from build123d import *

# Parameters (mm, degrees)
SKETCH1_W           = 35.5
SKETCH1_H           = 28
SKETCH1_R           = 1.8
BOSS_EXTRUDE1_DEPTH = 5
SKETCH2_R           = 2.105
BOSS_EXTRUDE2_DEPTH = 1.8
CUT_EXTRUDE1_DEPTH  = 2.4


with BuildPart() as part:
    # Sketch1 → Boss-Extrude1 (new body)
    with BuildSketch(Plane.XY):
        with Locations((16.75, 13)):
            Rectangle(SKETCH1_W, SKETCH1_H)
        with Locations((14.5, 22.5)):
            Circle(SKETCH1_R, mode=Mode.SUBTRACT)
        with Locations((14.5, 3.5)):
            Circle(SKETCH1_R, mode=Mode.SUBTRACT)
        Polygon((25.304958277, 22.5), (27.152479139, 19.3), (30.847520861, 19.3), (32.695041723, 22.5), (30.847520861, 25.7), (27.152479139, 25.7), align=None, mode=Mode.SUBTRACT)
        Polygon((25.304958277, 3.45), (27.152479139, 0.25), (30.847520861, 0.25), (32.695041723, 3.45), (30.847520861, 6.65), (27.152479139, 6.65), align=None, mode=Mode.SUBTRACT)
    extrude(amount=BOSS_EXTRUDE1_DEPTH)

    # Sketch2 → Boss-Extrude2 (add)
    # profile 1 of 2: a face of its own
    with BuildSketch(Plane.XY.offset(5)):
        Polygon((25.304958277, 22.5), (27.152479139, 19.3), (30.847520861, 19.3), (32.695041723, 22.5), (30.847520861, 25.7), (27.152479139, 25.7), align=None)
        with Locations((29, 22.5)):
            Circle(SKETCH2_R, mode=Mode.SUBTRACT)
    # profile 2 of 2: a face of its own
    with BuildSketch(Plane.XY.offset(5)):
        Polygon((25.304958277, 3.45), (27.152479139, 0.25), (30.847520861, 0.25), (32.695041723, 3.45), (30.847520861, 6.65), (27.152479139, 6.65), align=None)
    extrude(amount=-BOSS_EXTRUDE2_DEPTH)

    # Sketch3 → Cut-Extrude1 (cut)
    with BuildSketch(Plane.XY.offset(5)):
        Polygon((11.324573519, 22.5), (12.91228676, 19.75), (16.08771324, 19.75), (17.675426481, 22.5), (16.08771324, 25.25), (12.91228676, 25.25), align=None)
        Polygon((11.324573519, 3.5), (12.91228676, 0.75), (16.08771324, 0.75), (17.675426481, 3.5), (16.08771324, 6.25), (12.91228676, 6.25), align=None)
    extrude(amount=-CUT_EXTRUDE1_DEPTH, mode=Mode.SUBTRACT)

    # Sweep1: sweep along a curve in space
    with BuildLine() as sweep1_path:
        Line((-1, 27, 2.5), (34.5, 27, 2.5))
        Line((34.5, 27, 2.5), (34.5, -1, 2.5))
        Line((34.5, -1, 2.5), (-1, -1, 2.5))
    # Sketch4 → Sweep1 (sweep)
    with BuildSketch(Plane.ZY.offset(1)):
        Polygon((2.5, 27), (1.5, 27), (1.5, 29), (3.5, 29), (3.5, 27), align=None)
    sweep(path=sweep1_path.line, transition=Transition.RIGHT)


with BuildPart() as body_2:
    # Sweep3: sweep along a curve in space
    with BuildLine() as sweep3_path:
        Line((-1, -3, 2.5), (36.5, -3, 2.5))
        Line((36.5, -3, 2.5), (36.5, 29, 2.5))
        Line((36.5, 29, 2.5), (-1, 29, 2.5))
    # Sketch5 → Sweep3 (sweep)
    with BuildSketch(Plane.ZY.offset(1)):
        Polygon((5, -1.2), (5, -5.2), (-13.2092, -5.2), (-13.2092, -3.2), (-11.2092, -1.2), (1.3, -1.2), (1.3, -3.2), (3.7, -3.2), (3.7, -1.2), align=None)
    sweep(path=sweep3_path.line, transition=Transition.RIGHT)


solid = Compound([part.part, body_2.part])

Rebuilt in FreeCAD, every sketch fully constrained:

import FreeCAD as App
import Part
import Sketcher
Q = App.Units.Quantity

doc = App.newDocument("Part")
body = doc.addObject("PartDesign::Body", "Body")

sketch1 = doc.addObject("Sketcher::SketchObject", "Sketch")
body.addObject(sketch1)
sketch1.AttachmentSupport = (doc.XY_Plane, [""])
sketch1.MapMode = "FlatFace"
sketch1.addGeometry(Part.LineSegment(App.Vector(-1, 27, 0), App.Vector(-1, -1, 0)), False)
sketch1.addGeometry(Part.LineSegment(App.Vector(-1, -1, 0), App.Vector(34.5, -1, 0)), False)
sketch1.addGeometry(Part.LineSegment(App.Vector(34.5, -1, 0), App.Vector(34.5, 27, 0)), False)
sketch1.addGeometry(Part.LineSegment(App.Vector(34.5, 27, 0), App.Vector(-1, 27, 0)), False)
sketch1.addGeometry(Part.Circle(App.Vector(14.5, 3.5, 0), App.Vector(0, 0, 1), 1.8), False)
sketch1.addGeometry(Part.LineSegment(App.Vector(27.2, 0.2, 0), App.Vector(25.3, 3.5, 0)), False)
sketch1.addGeometry(Part.LineSegment(App.Vector(25.3, 3.5, 0), App.Vector(27.2, 6.7, 0)), False)
sketch1.addGeometry(Part.LineSegment(App.Vector(27.2, 6.7, 0), App.Vector(30.8, 6.7, 0)), False)
sketch1.addGeometry(Part.LineSegment(App.Vector(30.8, 6.7, 0), App.Vector(32.7, 3.5, 0)), False)
sketch1.addGeometry(Part.LineSegment(App.Vector(32.7, 3.5, 0), App.Vector(30.8, 0.2, 0)), False)
sketch1.addGeometry(Part.LineSegment(App.Vector(30.8, 0.2, 0), App.Vector(27.2, 0.2, 0)), False)
sketch1.addGeometry(Part.Circle(App.Vector(14.5, 22.5, 0), App.Vector(0, 0, 1), 1.8), False)
sketch1.addGeometry(Part.LineSegment(App.Vector(27.2, 19.3, 0), App.Vector(25.3, 22.5, 0)), False)
sketch1.addGeometry(Part.LineSegment(App.Vector(25.3, 22.5, 0), App.Vector(27.2, 25.7, 0)), False)
sketch1.addGeometry(Part.LineSegment(App.Vector(27.2, 25.7, 0), App.Vector(30.8, 25.7, 0)), False)
sketch1.addGeometry(Part.LineSegment(App.Vector(30.8, 25.7, 0), App.Vector(32.7, 22.5, 0)), False)
sketch1.addGeometry(Part.LineSegment(App.Vector(32.7, 22.5, 0), App.Vector(30.8, 19.3, 0)), False)
sketch1.addGeometry(Part.LineSegment(App.Vector(30.8, 19.3, 0), App.Vector(27.2, 19.3, 0)), False)
sketch1.addConstraint(Sketcher.Constraint("Coincident", 0, 2, 1, 1))
sketch1.addConstraint(Sketcher.Constraint("Coincident", 1, 2, 2, 1))
sketch1.addConstraint(Sketcher.Constraint("Coincident", 2, 2, 3, 1))
sketch1.addConstraint(Sketcher.Constraint("Coincident", 3, 2, 0, 1))
sketch1.addConstraint(Sketcher.Constraint("Coincident", 5, 2, 6, 1))
sketch1.addConstraint(Sketcher.Constraint("Coincident", 6, 2, 7, 1))
sketch1.addConstraint(Sketcher.Constraint("Coincident", 7, 2, 8, 1))
sketch1.addConstraint(Sketcher.Constraint("Coincident", 8, 2, 9, 1))
sketch1.addConstraint(Sketcher.Constraint("Coincident", 9, 2, 10, 1))
sketch1.addConstraint(Sketcher.Constraint("Coincident", 10, 2, 5, 1))
sketch1.addConstraint(Sketcher.Constraint("Coincident", 12, 2, 13, 1))
sketch1.addConstraint(Sketcher.Constraint("Coincident", 13, 2, 14, 1))
sketch1.addConstraint(Sketcher.Constraint("Coincident", 14, 2, 15, 1))
sketch1.addConstraint(Sketcher.Constraint("Coincident", 15, 2, 16, 1))
sketch1.addConstraint(Sketcher.Constraint("Coincident", 16, 2, 17, 1))
sketch1.addConstraint(Sketcher.Constraint("Coincident", 17, 2, 12, 1))
sketch1.addConstraint(Sketcher.Constraint("Vertical", 0))
sketch1.addConstraint(Sketcher.Constraint("Horizontal", 1))
sketch1.addConstraint(Sketcher.Constraint("Vertical", 2))
sketch1.addConstraint(Sketcher.Constraint("Horizontal", 3))
sketch1.addConstraint(Sketcher.Constraint("Horizontal", 7))
sketch1.addConstraint(Sketcher.Constraint("Horizontal", 10))
sketch1.addConstraint(Sketcher.Constraint("Horizontal", 14))
sketch1.addConstraint(Sketcher.Constraint("Horizontal", 17))
sketch1.addConstraint(Sketcher.Constraint("Equal", 4, 11))
sketch1.addConstraint(Sketcher.Constraint("Parallel", 5, 8))
sketch1.addConstraint(Sketcher.Constraint("Parallel", 6, 9))
sketch1.addConstraint(Sketcher.Constraint("Parallel", 8, 12))
sketch1.addConstraint(Sketcher.Constraint("Parallel", 9, 13))
sketch1.addConstraint(Sketcher.Constraint("Parallel", 12, 15))
sketch1.addConstraint(Sketcher.Constraint("Parallel", 13, 16))
sketch1.addConstraint(Sketcher.Constraint("Horizontal", 5, 2, 8, 2))
sketch1.addConstraint(Sketcher.Constraint("Horizontal", 11, 3, 12, 2))
sketch1.addConstraint(Sketcher.Constraint("Horizontal", 12, 2, 15, 2))
sketch1.addConstraint(Sketcher.Constraint("Vertical", 4, 3, 11, 3))
sketch1.addConstraint(Sketcher.Constraint("Vertical", 7, 2, 9, 2))
sketch1.addConstraint(Sketcher.Constraint("Vertical", 6, 2, 10, 2))
sketch1.addConstraint(Sketcher.Constraint("Vertical", 5, 2, 12, 2))
sketch1.addConstraint(Sketcher.Constraint("Vertical", 10, 2, 13, 2))
sketch1.addConstraint(Sketcher.Constraint("Vertical", 9, 2, 14, 2))
sketch1.addConstraint(Sketcher.Constraint("Vertical", 14, 2, 16, 2))
sketch1.addConstraint(Sketcher.Constraint("Diameter", 4, 3.6))
sketch1.addConstraint(Sketcher.Constraint("DistanceY", 0, 2, 0, 1, 28.0))
sketch1.addConstraint(Sketcher.Constraint("Angle", 5, Q("120 deg")))
sketch1.addConstraint(Sketcher.Constraint("DistanceX", 1, 1, 1, 2, 35.5))
sketch1.addConstraint(Sketcher.Constraint("DistanceX", 0, 2, -1, 1, 1.0))
sketch1.addConstraint(Sketcher.Constraint("DistanceY", 0, 2, -1, 1, 1.0))
sketch1.addConstraint(Sketcher.Constraint("DistanceY", 4, 3, 11, 3, 19.0))
sketch1.addConstraint(Sketcher.Constraint("DistanceX", 4, 3, 1, 2, 20.0))
sketch1.addConstraint(Sketcher.Constraint("DistanceY", -1, 1, 4, 3, 3.5))
sketch1.addConstraint(Sketcher.Constraint("DistanceY", -1, 1, 13, 2, 25.7))
sketch1.addConstraint(Sketcher.Constraint("DistanceY", -1, 1, 5, 2, 3.45))
sketch1.addConstraint(Sketcher.Constraint("DistanceX", 7, 1, 7, 2, 3.695042))
sketch1.addConstraint(Sketcher.Constraint("DistanceX", -1, 1, 5, 2, 25.304958))
pad1 = doc.addObject("PartDesign::Pad", "Pad")
body.addObject(pad1)
pad1.Profile = sketch1
pad1.Length = 5

sketch2 = doc.addObject("Sketcher::SketchObject", "Sketch001")
body.addObject(sketch2)
sketch2.AttachmentSupport = (doc.XY_Plane, [""])
sketch2.MapMode = "FlatFace"
sketch2.AttachmentOffset = App.Placement(App.Vector(0, 0, 5), App.Rotation())
sketch2.addGeometry(Part.LineSegment(App.Vector(25.3, 22.5, 0), App.Vector(27.2, 19.3, 0)), False)
sketch2.addGeometry(Part.LineSegment(App.Vector(27.2, 19.3, 0), App.Vector(30.8, 19.3, 0)), False)
sketch2.addGeometry(Part.LineSegment(App.Vector(30.8, 19.3, 0), App.Vector(32.7, 22.5, 0)), False)
sketch2.addGeometry(Part.LineSegment(App.Vector(32.7, 22.5, 0), App.Vector(30.8, 25.7, 0)), False)
sketch2.addGeometry(Part.LineSegment(App.Vector(30.8, 25.7, 0), App.Vector(27.2, 25.7, 0)), False)
sketch2.addGeometry(Part.LineSegment(App.Vector(27.2, 25.7, 0), App.Vector(25.3, 22.5, 0)), False)
sketch2.addGeometry(Part.Circle(App.Vector(29, 22.5, 0), App.Vector(0, 0, 1), 2.1), False)
sketch2.addGeometry(Part.LineSegment(App.Vector(25.3, 3.5, 0), App.Vector(27.2, 0.2, 0)), False)
sketch2.addGeometry(Part.LineSegment(App.Vector(27.2, 0.2, 0), App.Vector(30.8, 0.2, 0)), False)
sketch2.addGeometry(Part.LineSegment(App.Vector(30.8, 0.2, 0), App.Vector(32.7, 3.5, 0)), False)
sketch2.addGeometry(Part.LineSegment(App.Vector(32.7, 3.5, 0), App.Vector(30.8, 6.7, 0)), False)
sketch2.addGeometry(Part.LineSegment(App.Vector(30.8, 6.7, 0), App.Vector(27.2, 6.7, 0)), False)
sketch2.addGeometry(Part.LineSegment(App.Vector(27.2, 6.7, 0), App.Vector(25.3, 3.5, 0)), False)
sketch2.addConstraint(Sketcher.Constraint("Coincident", 0, 2, 1, 1))
sketch2.addConstraint(Sketcher.Constraint("Coincident", 1, 2, 2, 1))
sketch2.addConstraint(Sketcher.Constraint("Coincident", 2, 2, 3, 1))
sketch2.addConstraint(Sketcher.Constraint("Coincident", 3, 2, 4, 1))
sketch2.addConstraint(Sketcher.Constraint("Coincident", 4, 2, 5, 1))
sketch2.addConstraint(Sketcher.Constraint("Coincident", 5, 2, 0, 1))
sketch2.addConstraint(Sketcher.Constraint("Coincident", 7, 2, 8, 1))
sketch2.addConstraint(Sketcher.Constraint("Coincident", 8, 2, 9, 1))
sketch2.addConstraint(Sketcher.Constraint("Coincident", 9, 2, 10, 1))
sketch2.addConstraint(Sketcher.Constraint("Coincident", 10, 2, 11, 1))
sketch2.addConstraint(Sketcher.Constraint("Coincident", 11, 2, 12, 1))
sketch2.addConstraint(Sketcher.Constraint("Coincident", 12, 2, 7, 1))
sketch2.addConstraint(Sketcher.Constraint("Horizontal", 1))
sketch2.addConstraint(Sketcher.Constraint("Horizontal", 4))
sketch2.addConstraint(Sketcher.Constraint("Horizontal", 8))
sketch2.addConstraint(Sketcher.Constraint("Horizontal", 11))
sketch2.addConstraint(Sketcher.Constraint("Parallel", 0, 3))
sketch2.addConstraint(Sketcher.Constraint("Parallel", 2, 5))
sketch2.addConstraint(Sketcher.Constraint("Parallel", 3, 7))
sketch2.addConstraint(Sketcher.Constraint("Parallel", 5, 9))
sketch2.addConstraint(Sketcher.Constraint("Parallel", 7, 10))
sketch2.addConstraint(Sketcher.Constraint("Parallel", 9, 12))
sketch2.addConstraint(Sketcher.Constraint("Horizontal", 6, 3, 2, 2))
sketch2.addConstraint(Sketcher.Constraint("Horizontal", 2, 2, 5, 2))
sketch2.addConstraint(Sketcher.Constraint("Horizontal", 9, 2, 12, 2))
sketch2.addConstraint(Sketcher.Constraint("Vertical", 1, 2, 3, 2))
sketch2.addConstraint(Sketcher.Constraint("Vertical", 0, 2, 4, 2))
sketch2.addConstraint(Sketcher.Constraint("Vertical", 4, 2, 7, 2))
sketch2.addConstraint(Sketcher.Constraint("Vertical", 3, 2, 8, 2))
sketch2.addConstraint(Sketcher.Constraint("Vertical", 2, 2, 9, 2))
sketch2.addConstraint(Sketcher.Constraint("Vertical", 8, 2, 10, 2))
sketch2.addConstraint(Sketcher.Constraint("Diameter", 6, 4.21))
sketch2.addConstraint(Sketcher.Constraint("Angle", 0, Q("-60 deg")))
sketch2.addConstraint(Sketcher.Constraint("DistanceX", -1, 1, 6, 3, 29.0))
sketch2.addConstraint(Sketcher.Constraint("DistanceY", -1, 1, 6, 3, 22.5))
sketch2.addConstraint(Sketcher.Constraint("DistanceY", -1, 1, 0, 2, 19.3))
sketch2.addConstraint(Sketcher.Constraint("DistanceY", -1, 1, 7, 2, 0.25))
sketch2.addConstraint(Sketcher.Constraint("DistanceX", 1, 1, 1, 2, 3.695042))
sketch2.addConstraint(Sketcher.Constraint("DistanceX", -1, 1, 0, 2, 27.152479))
pad2 = doc.addObject("PartDesign::Pad", "Pad001")
body.addObject(pad2)
pad2.Profile = sketch2
pad2.Length = 1.8
pad2.Reversed = True

sketch3 = doc.addObject("Sketcher::SketchObject", "Sketch002")
body.addObject(sketch3)
sketch3.AttachmentSupport = (doc.XY_Plane, [""])
sketch3.MapMode = "FlatFace"
sketch3.AttachmentOffset = App.Placement(App.Vector(0, 0, 5), App.Rotation())
sketch3.addGeometry(Part.LineSegment(App.Vector(11.3, 22.5, 0), App.Vector(12.9, 19.8, 0)), False)
sketch3.addGeometry(Part.LineSegment(App.Vector(12.9, 19.8, 0), App.Vector(16.1, 19.8, 0)), False)
sketch3.addGeometry(Part.LineSegment(App.Vector(16.1, 19.8, 0), App.Vector(17.7, 22.5, 0)), False)
sketch3.addGeometry(Part.LineSegment(App.Vector(17.7, 22.5, 0), App.Vector(16.1, 25.2, 0)), False)
sketch3.addGeometry(Part.LineSegment(App.Vector(16.1, 25.2, 0), App.Vector(12.9, 25.2, 0)), False)
sketch3.addGeometry(Part.LineSegment(App.Vector(12.9, 25.2, 0), App.Vector(11.3, 22.5, 0)), False)
sketch3.addGeometry(Part.LineSegment(App.Vector(11.3, 3.5, 0), App.Vector(12.9, 0.8, 0)), False)
sketch3.addGeometry(Part.LineSegment(App.Vector(12.9, 0.8, 0), App.Vector(16.1, 0.8, 0)), False)
sketch3.addGeometry(Part.LineSegment(App.Vector(16.1, 0.8, 0), App.Vector(17.7, 3.5, 0)), False)
sketch3.addGeometry(Part.LineSegment(App.Vector(17.7, 3.5, 0), App.Vector(16.1, 6.2, 0)), False)
sketch3.addGeometry(Part.LineSegment(App.Vector(16.1, 6.2, 0), App.Vector(12.9, 6.2, 0)), False)
sketch3.addGeometry(Part.LineSegment(App.Vector(12.9, 6.2, 0), App.Vector(11.3, 3.5, 0)), False)
sketch3.addConstraint(Sketcher.Constraint("Coincident", 0, 2, 1, 1))
sketch3.addConstraint(Sketcher.Constraint("Coincident", 1, 2, 2, 1))
sketch3.addConstraint(Sketcher.Constraint("Coincident", 2, 2, 3, 1))
sketch3.addConstraint(Sketcher.Constraint("Coincident", 3, 2, 4, 1))
sketch3.addConstraint(Sketcher.Constraint("Coincident", 4, 2, 5, 1))
sketch3.addConstraint(Sketcher.Constraint("Coincident", 5, 2, 0, 1))
sketch3.addConstraint(Sketcher.Constraint("Coincident", 6, 2, 7, 1))
sketch3.addConstraint(Sketcher.Constraint("Coincident", 7, 2, 8, 1))
sketch3.addConstraint(Sketcher.Constraint("Coincident", 8, 2, 9, 1))
sketch3.addConstraint(Sketcher.Constraint("Coincident", 9, 2, 10, 1))
sketch3.addConstraint(Sketcher.Constraint("Coincident", 10, 2, 11, 1))
sketch3.addConstraint(Sketcher.Constraint("Coincident", 11, 2, 6, 1))
sketch3.addConstraint(Sketcher.Constraint("Horizontal", 1))
sketch3.addConstraint(Sketcher.Constraint("Horizontal", 4))
sketch3.addConstraint(Sketcher.Constraint("Horizontal", 7))
sketch3.addConstraint(Sketcher.Constraint("Horizontal", 10))
sketch3.addConstraint(Sketcher.Constraint("Parallel", 0, 3))
sketch3.addConstraint(Sketcher.Constraint("Parallel", 2, 5))
sketch3.addConstraint(Sketcher.Constraint("Parallel", 3, 6))
sketch3.addConstraint(Sketcher.Constraint("Parallel", 5, 8))
sketch3.addConstraint(Sketcher.Constraint("Parallel", 6, 9))
sketch3.addConstraint(Sketcher.Constraint("Parallel", 8, 11))
sketch3.addConstraint(Sketcher.Constraint("Horizontal", 2, 2, 5, 2))
sketch3.addConstraint(Sketcher.Constraint("Horizontal", 8, 2, 11, 2))
sketch3.addConstraint(Sketcher.Constraint("Vertical", 1, 2, 3, 2))
sketch3.addConstraint(Sketcher.Constraint("Vertical", 0, 2, 4, 2))
sketch3.addConstraint(Sketcher.Constraint("Vertical", 4, 2, 6, 2))
sketch3.addConstraint(Sketcher.Constraint("Vertical", 3, 2, 7, 2))
sketch3.addConstraint(Sketcher.Constraint("Vertical", 2, 2, 8, 2))
sketch3.addConstraint(Sketcher.Constraint("Vertical", 7, 2, 9, 2))
sketch3.addConstraint(Sketcher.Constraint("Angle", 0, Q("-60 deg")))
sketch3.addConstraint(Sketcher.Constraint("DistanceY", 6, 2, 0, 2, 19.0))
sketch3.addConstraint(Sketcher.Constraint("DistanceY", -1, 1, 2, 2, 22.5))
sketch3.addConstraint(Sketcher.Constraint("DistanceY", 1, 2, 3, 2, 5.5))
sketch3.addConstraint(Sketcher.Constraint("DistanceX", 1, 1, 1, 2, 3.175426))
sketch3.addConstraint(Sketcher.Constraint("DistanceX", -1, 1, 0, 2, 12.912287))
pocket1 = doc.addObject("PartDesign::Pocket", "Pocket")
body.addObject(pocket1)
pocket1.Profile = sketch3
pocket1.Length = 2.4

sketch4 = doc.addObject("Sketcher::SketchObject", "Sketch003")
body.addObject(sketch4)
sketch4.AttachmentSupport = (doc.YZ_Plane, [""])
sketch4.MapMode = "FlatFace"
sketch4.AttachmentOffset = App.Placement(App.Vector(0, 0, -1), App.Rotation())
sketch4.addGeometry(Part.LineSegment(App.Vector(27, 1.5, 0), App.Vector(27, 3.5, 0)), False)
sketch4.addGeometry(Part.LineSegment(App.Vector(27, 3.5, 0), App.Vector(29, 3.5, 0)), False)
sketch4.addGeometry(Part.LineSegment(App.Vector(29, 3.5, 0), App.Vector(29, 1.5, 0)), False)
sketch4.addGeometry(Part.LineSegment(App.Vector(29, 1.5, 0), App.Vector(27, 1.5, 0)), False)
sketch4.addConstraint(Sketcher.Constraint("Coincident", 0, 2, 1, 1))
sketch4.addConstraint(Sketcher.Constraint("Coincident", 1, 2, 2, 1))
sketch4.addConstraint(Sketcher.Constraint("Coincident", 2, 2, 3, 1))
sketch4.addConstraint(Sketcher.Constraint("Coincident", 3, 2, 0, 1))
sketch4.addConstraint(Sketcher.Constraint("Vertical", 0))
sketch4.addConstraint(Sketcher.Constraint("Horizontal", 1))
sketch4.addConstraint(Sketcher.Constraint("Vertical", 2))
sketch4.addConstraint(Sketcher.Constraint("Horizontal", 3))
sketch4.addConstraint(Sketcher.Constraint("Equal", 3, 0))
sketch4.addConstraint(Sketcher.Constraint("DistanceX", 1, 1, 1, 2, 2.0))
sketch4.addConstraint(Sketcher.Constraint("DistanceX", -1, 1, 0, 2, 27.0))
sketch4.addConstraint(Sketcher.Constraint("DistanceY", -1, 1, 0, 2, 3.5))

sketch5 = doc.addObject("Sketcher::SketchObject", "Sketch004")
body.addObject(sketch5)
sketch5.AttachmentSupport = (doc.XY_Plane, [""])
sketch5.MapMode = "FlatFace"
sketch5.AttachmentOffset = App.Placement(App.Vector(0, 0, 2.5), App.Rotation())
sketch5.addGeometry(Part.LineSegment(App.Vector(-1, 27, 0), App.Vector(34, 27, 0)), False)
sketch5.addGeometry(Part.LineSegment(App.Vector(34, 27, 0), App.Vector(34, -1, 0)), False)
sketch5.addGeometry(Part.LineSegment(App.Vector(34, -1, 0), App.Vector(-1, -1, 0)), False)
sketch5.addConstraint(Sketcher.Constraint("Coincident", 0, 2, 1, 1))
sketch5.addConstraint(Sketcher.Constraint("Coincident", 1, 2, 2, 1))
sketch5.addConstraint(Sketcher.Constraint("Horizontal", 0))
sketch5.addConstraint(Sketcher.Constraint("Vertical", 1))
sketch5.addConstraint(Sketcher.Constraint("Horizontal", 2))
sketch5.addConstraint(Sketcher.Constraint("Vertical", 0, 1, 2, 2))
sketch5.addConstraint(Sketcher.Constraint("DistanceY", 1, 2, 1, 1, 28.0))
sketch5.addConstraint(Sketcher.Constraint("DistanceX", 0, 1, 0, 2, 35.5))
sketch5.addConstraint(Sketcher.Constraint("DistanceX", 0, 1, -1, 1, 1.0))
sketch5.addConstraint(Sketcher.Constraint("DistanceY", -1, 1, 0, 1, 27.0))
doc.recompute()

additivepipe = doc.addObject("PartDesign::AdditivePipe", "AdditivePipe")
body.addObject(additivepipe)
additivepipe.Profile = sketch4
additivepipe.Spine = (sketch5, ["Edge1", "Edge2", "Edge3"])
additivepipe.Transition = "Right corner"
body2 = doc.addObject("PartDesign::Body", "Body001")

sketch6 = doc.addObject("Sketcher::SketchObject", "Sketch005")
body2.addObject(sketch6)
sketch6.AttachmentSupport = (doc.getObject("YZ_Plane001"), [""])
sketch6.MapMode = "FlatFace"
sketch6.AttachmentOffset = App.Placement(App.Vector(0, 0, -1), App.Rotation())
sketch6.addGeometry(Part.LineSegment(App.Vector(-5.2, 5, 0), App.Vector(-1.2, 5, 0)), False)
sketch6.addGeometry(Part.LineSegment(App.Vector(-1.2, 5, 0), App.Vector(-1.2, 3.7, 0)), False)
sketch6.addGeometry(Part.LineSegment(App.Vector(-1.2, 3.7, 0), App.Vector(-3.2, 3.7, 0)), False)
sketch6.addGeometry(Part.LineSegment(App.Vector(-3.2, 3.7, 0), App.Vector(-3.2, 1.3, 0)), False)
sketch6.addGeometry(Part.LineSegment(App.Vector(-3.2, 1.3, 0), App.Vector(-1.2, 1.3, 0)), False)
sketch6.addGeometry(Part.LineSegment(App.Vector(-1.2, 1.3, 0), App.Vector(-1.2, -11.2, 0)), False)
sketch6.addGeometry(Part.LineSegment(App.Vector(-1.2, -11.2, 0), App.Vector(-3.2, -13.2, 0)), False)
sketch6.addGeometry(Part.LineSegment(App.Vector(-3.2, -13.2, 0), App.Vector(-5.2, -13.2, 0)), False)
sketch6.addGeometry(Part.LineSegment(App.Vector(-5.2, -13.2, 0), App.Vector(-5.2, 5, 0)), False)
sketch6.addConstraint(Sketcher.Constraint("Coincident", 0, 2, 1, 1))
sketch6.addConstraint(Sketcher.Constraint("Coincident", 1, 2, 2, 1))
sketch6.addConstraint(Sketcher.Constraint("Coincident", 2, 2, 3, 1))
sketch6.addConstraint(Sketcher.Constraint("Coincident", 3, 2, 4, 1))
sketch6.addConstraint(Sketcher.Constraint("Coincident", 4, 2, 5, 1))
sketch6.addConstraint(Sketcher.Constraint("Coincident", 5, 2, 6, 1))
sketch6.addConstraint(Sketcher.Constraint("Coincident", 6, 2, 7, 1))
sketch6.addConstraint(Sketcher.Constraint("Coincident", 7, 2, 8, 1))
sketch6.addConstraint(Sketcher.Constraint("Coincident", 8, 2, 0, 1))
sketch6.addConstraint(Sketcher.Constraint("Horizontal", 0))
sketch6.addConstraint(Sketcher.Constraint("Vertical", 1))
sketch6.addConstraint(Sketcher.Constraint("Horizontal", 2))
sketch6.addConstraint(Sketcher.Constraint("Vertical", 3))
sketch6.addConstraint(Sketcher.Constraint("Horizontal", 4))
sketch6.addConstraint(Sketcher.Constraint("Vertical", 5))
sketch6.addConstraint(Sketcher.Constraint("Horizontal", 7))
sketch6.addConstraint(Sketcher.Constraint("Vertical", 8))
sketch6.addConstraint(Sketcher.Constraint("Vertical", 1, 2, 4, 2))
sketch6.addConstraint(Sketcher.Constraint("Vertical", 3, 2, 6, 2))
sketch6.addConstraint(Sketcher.Constraint("Equal", 4, 7))
sketch6.addConstraint(Sketcher.Constraint("DistanceX", 0, 1, 0, 2, 4.0))
sketch6.addConstraint(Sketcher.Constraint("Angle", 6, Q("-135 deg")))
sketch6.addConstraint(Sketcher.Constraint("DistanceY", 1, 2, 1, 1, 1.3))
sketch6.addConstraint(Sketcher.Constraint("DistanceY", 3, 2, 3, 1, 2.4))
sketch6.addConstraint(Sketcher.Constraint("DistanceY", -1, 1, 0, 2, 5.0))
sketch6.addConstraint(Sketcher.Constraint("DistanceX", 0, 2, -1, 1, 1.2))
sketch6.addConstraint(Sketcher.Constraint("DistanceY", 5, 2, 5, 1, 12.5092))

sketch7 = doc.addObject("Sketcher::SketchObject", "Sketch006")
body2.addObject(sketch7)
sketch7.AttachmentSupport = (doc.getObject("XY_Plane001"), [""])
sketch7.MapMode = "FlatFace"
sketch7.AttachmentOffset = App.Placement(App.Vector(0, 0, 2.5), App.Rotation())
sketch7.addGeometry(Part.LineSegment(App.Vector(-1, -3, 0), App.Vector(36, -3, 0)), False)
sketch7.addGeometry(Part.LineSegment(App.Vector(36, -3, 0), App.Vector(36, 29, 0)), False)
sketch7.addGeometry(Part.LineSegment(App.Vector(36, 29, 0), App.Vector(-1, 29, 0)), False)
sketch7.addConstraint(Sketcher.Constraint("Coincident", 0, 2, 1, 1))
sketch7.addConstraint(Sketcher.Constraint("Coincident", 1, 2, 2, 1))
sketch7.addConstraint(Sketcher.Constraint("Horizontal", 0))
sketch7.addConstraint(Sketcher.Constraint("Vertical", 1))
sketch7.addConstraint(Sketcher.Constraint("Horizontal", 2))
sketch7.addConstraint(Sketcher.Constraint("Vertical", 0, 1, 2, 2))
sketch7.addConstraint(Sketcher.Constraint("DistanceY", 1, 1, 1, 2, 32.0))
sketch7.addConstraint(Sketcher.Constraint("DistanceX", 0, 1, 0, 2, 37.5))
sketch7.addConstraint(Sketcher.Constraint("DistanceX", 0, 1, -1, 1, 1.0))
sketch7.addConstraint(Sketcher.Constraint("DistanceY", 0, 1, -1, 1, 3.0))
doc.recompute()

additivepipe2 = doc.addObject("PartDesign::AdditivePipe", "AdditivePipe001")
body2.addObject(additivepipe2)
additivepipe2.Profile = sketch6
additivepipe2.Spine = (sketch7, ["Edge1", "Edge2", "Edge3"])
additivepipe2.Transition = "Right corner"

doc.recompute()
